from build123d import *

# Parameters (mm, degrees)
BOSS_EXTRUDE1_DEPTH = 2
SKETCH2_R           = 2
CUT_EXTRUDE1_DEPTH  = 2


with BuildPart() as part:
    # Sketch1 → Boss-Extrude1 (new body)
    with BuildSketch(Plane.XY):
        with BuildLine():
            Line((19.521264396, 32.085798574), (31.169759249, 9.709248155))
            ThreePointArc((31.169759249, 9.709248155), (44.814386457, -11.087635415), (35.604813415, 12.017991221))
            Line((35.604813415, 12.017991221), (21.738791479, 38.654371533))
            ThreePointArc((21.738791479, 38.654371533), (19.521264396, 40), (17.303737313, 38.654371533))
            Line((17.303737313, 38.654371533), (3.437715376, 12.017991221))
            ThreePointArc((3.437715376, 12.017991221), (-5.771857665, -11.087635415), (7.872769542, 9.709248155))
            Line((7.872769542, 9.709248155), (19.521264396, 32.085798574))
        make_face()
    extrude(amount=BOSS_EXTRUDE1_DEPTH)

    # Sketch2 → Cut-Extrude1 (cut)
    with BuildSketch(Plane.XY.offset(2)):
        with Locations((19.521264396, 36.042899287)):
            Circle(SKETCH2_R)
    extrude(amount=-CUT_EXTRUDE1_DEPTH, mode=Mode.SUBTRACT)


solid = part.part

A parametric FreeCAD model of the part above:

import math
import FreeCAD as App
import Part
import Sketcher

V = App.Vector
Q = App.Units.Quantity

doc = App.newDocument("Part")
body = doc.addObject("PartDesign::Body", "Body")

# Sketch on XY plane
sketch1 = body.newObject("Sketcher::SketchObject", "Sketch")
sketch1.AttachmentSupport = (doc.getObject("XY_Plane"), [""])
sketch1.MapMode = "FlatFace"
sketch1.addGeometry([
    Part.LineSegment(V(19.5, 32.1, 0), V(31.2, 9.7, 0)),  # 0
    Part.ArcOfCircle(Part.Circle(V(39, 0, 0), V(0, 0, 1), 12.5), math.radians(129), math.radians(466)),  # 1
    Part.LineSegment(V(35.6, 12, 0), V(21.7, 38.7, 0)),  # 2
    Part.ArcOfCircle(Part.Circle(V(19.5, 37.5, 0), V(0, 0, 1), 2.5), math.radians(27), math.radians(153)),  # 3
    Part.LineSegment(V(17.3, 38.7, 0), V(3.4, 12, 0)),  # 4
    Part.ArcOfCircle(Part.Circle(V(0, 0, 0), V(0, 0, 1), 12.5), math.radians(74), math.radians(411)),  # 5
    Part.LineSegment(V(7.9, 9.7, 0), V(19.5, 32.1, 0)),  # 6
], False)
sketch1.addConstraint([
    Sketcher.Constraint("Coincident", 0, 2, 1, 1),
    Sketcher.Constraint("Coincident", 1, 2, 2, 1),
    Sketcher.Constraint("Tangent", 2, 2, 3, 1),
    Sketcher.Constraint("Tangent", 3, 2, 4, 1),
    Sketcher.Constraint("Coincident", 4, 2, 5, 1),
    Sketcher.Constraint("Coincident", 5, 2, 6, 1),
    Sketcher.Constraint("Coincident", 6, 2, 0, 1),
    Sketcher.Constraint("Coincident", 5, 3, -1, 1),
    Sketcher.Constraint("Equal", 1, 5),
    Sketcher.Constraint("PointOnObject", 1, 3, -1),
    Sketcher.Constraint("Parallel", 0, 2),
    Sketcher.Constraint("Parallel", 4, 6),
    Sketcher.Constraint("Horizontal", 2, 2, 3, 2),
    Sketcher.Constraint("Horizontal", 1, 2, 4, 2),
    Sketcher.Constraint("Horizontal", 0, 2, 5, 2),
    Sketcher.Constraint("Radius", 1, Q("12.5 mm")),
    Sketcher.Constraint("Radius", 3, Q("2.5 mm")),
    Sketcher.Constraint("Angle", 0, Q("-62.5 deg")),
    Sketcher.Constraint("DistanceY", -1, 1, 3, 3, Q("37.5 mm")),
    Sketcher.Constraint("DistanceY", -1, 1, 6, 2, Q("32.085799 mm")),
    Sketcher.Constraint("DistanceX", 4, 2, 1, 2, Q("32.167098 mm")),
])
pad1 = body.newObject("PartDesign::Pad", "Pad")
pad1.Profile = sketch1
pad1.Length = 2

# Sketch on XY plane
sketch2 = body.newObject("Sketcher::SketchObject", "Sketch001")
sketch2.AttachmentSupport = (doc.getObject("XY_Plane"), [""])
sketch2.MapMode = "FlatFace"
sketch2.AttachmentOffset = App.Placement(V(0, 0, 2), App.Rotation())
sketch2.addGeometry(Part.Circle(V(19.5, 36, 0), V(0, 0, 1), 2), False)
sketch2.addConstraint([
    Sketcher.Constraint("Diameter", 0, Q("4 mm")),
    Sketcher.Constraint("DistanceY", -1, 1, 0, 3, Q("36.042899 mm")),
    Sketcher.Constraint("DistanceX", -1, 1, 0, 3, Q("19.521264 mm")),
])
pocket1 = body.newObject("PartDesign::Pocket", "Pocket")
pocket1.Profile = sketch2
pocket1.Length = 2

doc.recompute()
